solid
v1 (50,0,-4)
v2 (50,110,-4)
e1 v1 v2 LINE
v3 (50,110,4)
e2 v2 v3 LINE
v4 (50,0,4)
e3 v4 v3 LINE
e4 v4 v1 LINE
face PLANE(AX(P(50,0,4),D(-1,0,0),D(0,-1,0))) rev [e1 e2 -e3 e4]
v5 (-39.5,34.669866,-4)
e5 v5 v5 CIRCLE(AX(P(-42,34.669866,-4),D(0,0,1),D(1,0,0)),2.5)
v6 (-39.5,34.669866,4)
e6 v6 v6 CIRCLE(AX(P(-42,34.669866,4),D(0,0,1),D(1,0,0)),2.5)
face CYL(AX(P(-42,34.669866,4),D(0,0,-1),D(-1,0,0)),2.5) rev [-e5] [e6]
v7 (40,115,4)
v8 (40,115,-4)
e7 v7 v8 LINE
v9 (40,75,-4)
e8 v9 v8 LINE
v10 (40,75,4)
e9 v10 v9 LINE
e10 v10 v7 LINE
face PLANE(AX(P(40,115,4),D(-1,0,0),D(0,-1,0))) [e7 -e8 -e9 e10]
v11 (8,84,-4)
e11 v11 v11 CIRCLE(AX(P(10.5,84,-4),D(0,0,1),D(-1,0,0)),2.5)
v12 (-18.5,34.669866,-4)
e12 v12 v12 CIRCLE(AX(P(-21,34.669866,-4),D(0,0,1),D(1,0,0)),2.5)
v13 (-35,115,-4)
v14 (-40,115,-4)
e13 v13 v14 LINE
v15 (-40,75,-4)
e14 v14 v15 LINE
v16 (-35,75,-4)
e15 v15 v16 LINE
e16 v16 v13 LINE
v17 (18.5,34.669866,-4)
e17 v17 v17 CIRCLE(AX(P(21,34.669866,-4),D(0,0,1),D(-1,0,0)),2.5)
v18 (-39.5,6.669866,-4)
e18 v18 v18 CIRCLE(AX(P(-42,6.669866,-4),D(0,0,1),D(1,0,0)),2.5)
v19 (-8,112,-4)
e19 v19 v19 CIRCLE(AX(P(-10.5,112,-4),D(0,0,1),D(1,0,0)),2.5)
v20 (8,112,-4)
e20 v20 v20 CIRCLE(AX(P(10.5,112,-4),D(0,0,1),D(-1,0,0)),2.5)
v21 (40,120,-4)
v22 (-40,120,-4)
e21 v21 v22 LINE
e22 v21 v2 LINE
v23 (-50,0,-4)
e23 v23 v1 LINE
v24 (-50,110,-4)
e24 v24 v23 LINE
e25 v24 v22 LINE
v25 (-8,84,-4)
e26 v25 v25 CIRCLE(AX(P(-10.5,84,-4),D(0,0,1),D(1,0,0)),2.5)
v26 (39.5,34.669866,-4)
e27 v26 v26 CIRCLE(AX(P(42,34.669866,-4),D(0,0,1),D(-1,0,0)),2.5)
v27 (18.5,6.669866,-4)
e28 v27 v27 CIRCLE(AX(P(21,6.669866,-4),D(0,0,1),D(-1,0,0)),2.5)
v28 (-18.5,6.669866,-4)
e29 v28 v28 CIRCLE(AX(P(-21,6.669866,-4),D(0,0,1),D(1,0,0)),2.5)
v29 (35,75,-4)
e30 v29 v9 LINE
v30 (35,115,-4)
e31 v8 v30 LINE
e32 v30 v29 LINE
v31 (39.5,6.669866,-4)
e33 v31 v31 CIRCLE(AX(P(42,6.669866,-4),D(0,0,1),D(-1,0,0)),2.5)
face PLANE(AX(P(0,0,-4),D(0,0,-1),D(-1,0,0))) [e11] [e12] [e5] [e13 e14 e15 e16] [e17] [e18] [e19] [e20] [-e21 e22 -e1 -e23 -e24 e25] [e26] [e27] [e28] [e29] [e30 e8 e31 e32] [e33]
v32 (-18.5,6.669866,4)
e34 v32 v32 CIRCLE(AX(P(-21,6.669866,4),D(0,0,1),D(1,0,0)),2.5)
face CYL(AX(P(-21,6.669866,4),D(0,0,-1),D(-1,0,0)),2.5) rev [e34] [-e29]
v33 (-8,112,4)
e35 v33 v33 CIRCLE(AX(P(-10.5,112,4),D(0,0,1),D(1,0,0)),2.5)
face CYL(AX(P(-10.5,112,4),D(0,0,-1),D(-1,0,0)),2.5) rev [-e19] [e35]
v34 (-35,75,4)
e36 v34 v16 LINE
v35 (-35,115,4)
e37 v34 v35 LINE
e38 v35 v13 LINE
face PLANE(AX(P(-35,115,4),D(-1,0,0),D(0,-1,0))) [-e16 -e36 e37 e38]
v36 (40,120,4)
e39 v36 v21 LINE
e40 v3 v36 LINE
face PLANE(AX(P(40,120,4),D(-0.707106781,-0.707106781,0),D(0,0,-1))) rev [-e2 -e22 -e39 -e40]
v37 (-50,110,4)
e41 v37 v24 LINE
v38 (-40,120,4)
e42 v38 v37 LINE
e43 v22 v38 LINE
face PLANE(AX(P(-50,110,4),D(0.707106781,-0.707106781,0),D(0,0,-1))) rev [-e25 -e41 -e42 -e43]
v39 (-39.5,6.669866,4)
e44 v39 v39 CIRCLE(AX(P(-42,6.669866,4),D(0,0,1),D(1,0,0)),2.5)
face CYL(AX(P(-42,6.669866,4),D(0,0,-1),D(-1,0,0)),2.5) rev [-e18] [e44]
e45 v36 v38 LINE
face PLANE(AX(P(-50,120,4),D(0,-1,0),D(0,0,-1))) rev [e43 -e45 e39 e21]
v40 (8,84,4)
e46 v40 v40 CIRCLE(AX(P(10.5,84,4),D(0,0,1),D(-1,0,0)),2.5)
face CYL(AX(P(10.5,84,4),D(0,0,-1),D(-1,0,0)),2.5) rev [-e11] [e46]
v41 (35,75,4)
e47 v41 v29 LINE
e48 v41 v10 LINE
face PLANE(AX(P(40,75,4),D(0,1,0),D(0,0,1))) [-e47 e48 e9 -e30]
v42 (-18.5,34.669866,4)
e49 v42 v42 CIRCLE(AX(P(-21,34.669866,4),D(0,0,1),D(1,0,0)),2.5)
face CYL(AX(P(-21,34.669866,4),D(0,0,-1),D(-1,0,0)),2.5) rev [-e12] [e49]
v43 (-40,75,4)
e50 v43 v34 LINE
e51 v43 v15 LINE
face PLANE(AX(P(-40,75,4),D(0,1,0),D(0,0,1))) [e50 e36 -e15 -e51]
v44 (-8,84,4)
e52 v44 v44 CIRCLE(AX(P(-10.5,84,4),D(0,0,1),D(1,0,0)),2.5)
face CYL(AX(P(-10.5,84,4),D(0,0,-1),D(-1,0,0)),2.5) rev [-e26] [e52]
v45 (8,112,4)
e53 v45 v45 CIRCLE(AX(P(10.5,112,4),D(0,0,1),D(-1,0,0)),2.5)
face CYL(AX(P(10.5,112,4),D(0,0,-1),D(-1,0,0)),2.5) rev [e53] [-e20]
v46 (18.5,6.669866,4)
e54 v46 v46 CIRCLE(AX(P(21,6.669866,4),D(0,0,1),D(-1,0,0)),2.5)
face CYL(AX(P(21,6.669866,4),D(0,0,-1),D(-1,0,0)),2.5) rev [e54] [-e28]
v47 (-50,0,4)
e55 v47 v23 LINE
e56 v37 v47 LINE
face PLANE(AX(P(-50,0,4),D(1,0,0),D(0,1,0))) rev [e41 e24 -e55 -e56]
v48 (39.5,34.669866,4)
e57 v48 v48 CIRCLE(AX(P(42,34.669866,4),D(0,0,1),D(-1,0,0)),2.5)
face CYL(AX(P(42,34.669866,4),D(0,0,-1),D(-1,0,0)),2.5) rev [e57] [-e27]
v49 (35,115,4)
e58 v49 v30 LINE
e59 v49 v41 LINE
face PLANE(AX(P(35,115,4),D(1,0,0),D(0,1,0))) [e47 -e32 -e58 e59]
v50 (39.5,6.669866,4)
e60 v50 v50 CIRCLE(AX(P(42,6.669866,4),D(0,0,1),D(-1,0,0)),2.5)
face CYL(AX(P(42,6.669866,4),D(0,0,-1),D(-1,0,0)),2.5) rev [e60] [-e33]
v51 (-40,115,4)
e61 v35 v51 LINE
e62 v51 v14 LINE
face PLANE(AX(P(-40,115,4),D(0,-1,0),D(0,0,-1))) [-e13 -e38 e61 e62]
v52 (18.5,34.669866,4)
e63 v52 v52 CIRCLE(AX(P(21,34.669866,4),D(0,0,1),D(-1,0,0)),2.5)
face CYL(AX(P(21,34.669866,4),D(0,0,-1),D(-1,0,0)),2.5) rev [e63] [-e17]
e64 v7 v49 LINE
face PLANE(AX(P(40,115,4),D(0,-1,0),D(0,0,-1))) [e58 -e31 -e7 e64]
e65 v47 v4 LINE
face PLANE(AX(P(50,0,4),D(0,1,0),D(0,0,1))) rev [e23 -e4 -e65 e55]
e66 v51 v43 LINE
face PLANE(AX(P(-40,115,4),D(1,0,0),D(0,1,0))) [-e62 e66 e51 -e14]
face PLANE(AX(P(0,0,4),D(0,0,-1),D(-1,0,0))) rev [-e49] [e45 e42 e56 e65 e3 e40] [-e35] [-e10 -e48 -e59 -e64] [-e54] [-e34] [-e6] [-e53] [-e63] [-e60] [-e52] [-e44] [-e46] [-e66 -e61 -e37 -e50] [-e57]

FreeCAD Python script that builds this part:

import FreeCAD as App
import Part
import Sketcher


def edges_at(feature, points):
    """Names of the edges that pass closest to the given points."""
    edges = feature.Shape.Edges
    near = lambda p: min(range(len(edges)), key=lambda i: edges[i].distToShape(Part.Vertex(*p))[0])
    return sorted({f"Edge{near(p) + 1}" for p in points})

doc = App.newDocument("Part")
body = doc.addObject("PartDesign::Body", "Body")

# Sketch on XY plane
sketch1 = body.newObject("Sketcher::SketchObject", "Sketch")
sketch1.AttachmentSupport = (doc.getObject("XY_Plane"), [""])
sketch1.MapMode = "FlatFace"
sketch1.addGeometry([
    Part.LineSegment(App.Vector(-50, 120, 0), App.Vector(-50, 0, 0)),  # 0
    Part.LineSegment(App.Vector(-50, 0, 0), App.Vector(50, 0, 0)),  # 1
    Part.LineSegment(App.Vector(50, 0, 0), App.Vector(50, 120, 0)),  # 2
    Part.LineSegment(App.Vector(50, 120, 0), App.Vector(-50, 120, 0)),  # 3
    Part.Circle(App.Vector(-42, 6.7, 0), App.Vector(0, 0, 1), 2.5),  # 4
    Part.Circle(App.Vector(-21, 6.7, 0), App.Vector(0, 0, 1), 2.5),  # 5
    Part.Circle(App.Vector(-42, 34.7, 0), App.Vector(0, 0, 1), 2.5),  # 6
    Part.Circle(App.Vector(-21, 34.7, 0), App.Vector(0, 0, 1), 2.5),  # 7
    Part.Circle(App.Vector(21, 6.7, 0), App.Vector(0, 0, 1), 2.5),  # 8
    Part.Circle(App.Vector(42, 6.7, 0), App.Vector(0, 0, 1), 2.5),  # 9
    Part.Circle(App.Vector(21, 34.7, 0), App.Vector(0, 0, 1), 2.5),  # 10
    Part.Circle(App.Vector(42, 34.7, 0), App.Vector(0, 0, 1), 2.5),  # 11
    Part.Circle(App.Vector(-10.5, 84, 0), App.Vector(0, 0, 1), 2.5),  # 12
    Part.LineSegment(App.Vector(-35, 75, 0), App.Vector(-40, 75, 0)),  # 13
    Part.LineSegment(App.Vector(-40, 75, 0), App.Vector(-40, 115, 0)),  # 14
    Part.LineSegment(App.Vector(-40, 115, 0), App.Vector(-35, 115, 0)),  # 15
    Part.LineSegment(App.Vector(-35, 115, 0), App.Vector(-35, 75, 0)),  # 16
    Part.Circle(App.Vector(-10.5, 112, 0), App.Vector(0, 0, 1), 2.5),  # 17
    Part.Circle(App.Vector(10.5, 84, 0), App.Vector(0, 0, 1), 2.5),  # 18
    Part.Circle(App.Vector(10.5, 112, 0), App.Vector(0, 0, 1), 2.5),  # 19
    Part.LineSegment(App.Vector(40, 75, 0), App.Vector(35, 75, 0)),  # 20
    Part.LineSegment(App.Vector(35, 75, 0), App.Vector(35, 115, 0)),  # 21
    Part.LineSegment(App.Vector(35, 115, 0), App.Vector(40, 115, 0)),  # 22
    Part.LineSegment(App.Vector(40, 115, 0), App.Vector(40, 75, 0)),  # 23
], False)
sketch1.addConstraint([
    Sketcher.Constraint("Coincident", 0, 2, 1, 1),
    Sketcher.Constraint("Coincident", 1, 2, 2, 1),
    Sketcher.Constraint("Coincident", 2, 2, 3, 1),
    Sketcher.Constraint("Coincident", 3, 2, 0, 1),
    Sketcher.Constraint("Coincident", 13, 2, 14, 1),
    Sketcher.Constraint("Coincident", 14, 2, 15, 1),
    Sketcher.Constraint("Coincident", 15, 2, 16, 1),
    Sketcher.Constraint("Coincident", 16, 2, 13, 1),
    Sketcher.Constraint("Coincident", 20, 2, 21, 1),
    Sketcher.Constraint("Coincident", 21, 2, 22, 1),
    Sketcher.Constraint("Coincident", 22, 2, 23, 1),
    Sketcher.Constraint("Coincident", 23, 2, 20, 1),
    Sketcher.Constraint("Vertical", 0),
    Sketcher.Constraint("Horizontal", 1),
    Sketcher.Constraint("Vertical", 2),
    Sketcher.Constraint("Horizontal", 3),
    Sketcher.Constraint("Horizontal", 13),
    Sketcher.Constraint("Vertical", 14),
    Sketcher.Constraint("Horizontal", 15),
    Sketcher.Constraint("Vertical", 16),
    Sketcher.Constraint("Horizontal", 20),
    Sketcher.Constraint("Vertical", 21),
    Sketcher.Constraint("Horizontal", 22),
    Sketcher.Constraint("Vertical", 23),
    Sketcher.Constraint("Equal", 4, 5),
    Sketcher.Constraint("Equal", 5, 6),
    Sketcher.Constraint("Equal", 6, 7),
    Sketcher.Constraint("Equal", 7, 8),
    Sketcher.Constraint("Equal", 8, 9),
    Sketcher.Constraint("Equal", 9, 10),
    Sketcher.Constraint("Equal", 10, 11),
    Sketcher.Constraint("Equal", 11, 12),
    Sketcher.Constraint("Equal", 12, 17),
    Sketcher.Constraint("Equal", 17, 18),
    Sketcher.Constraint("Equal", 18, 19),
    Sketcher.Constraint("Symmetric", 0, 2, 1, 2, -1, 1),
    Sketcher.Constraint("Symmetric", 5, 3, 8, 3, -2),
    Sketcher.Constraint("Symmetric", 4, 3, 9, 3, -2),
    Sketcher.Constraint("Symmetric", 7, 3, 10, 3, -2),
    Sketcher.Constraint("Symmetric", 6, 3, 11, 3, -2),
    Sketcher.Constraint("Symmetric", 12, 3, 18, 3, -2),
    Sketcher.Constraint("Symmetric", 17, 3, 19, 3, -2),
    Sketcher.Constraint("Symmetric", 16, 2, 20, 2, -2),
    Sketcher.Constraint("Symmetric", 14, 2, 22, 2, -2),
    Sketcher.Constraint("Horizontal", 4, 3, 5, 3),
    Sketcher.Constraint("Horizontal", 6, 3, 7, 3),
    Sketcher.Constraint("Vertical", 4, 3, 6, 3),
    Sketcher.Constraint("Vertical", 5, 3, 7, 3),
    Sketcher.Constraint("Vertical", 12, 3, 17, 3),
    Sketcher.Constraint("Diameter", 4, 5.0),
    Sketcher.Constraint("DistanceX", 1, 1, 1, 2, 100.0),
    Sketcher.Constraint("DistanceX", 13, 2, 13, 1, 5.0),
    Sketcher.Constraint("DistanceY", 0, 2, 0, 1, 120.0),
    Sketcher.Constraint("DistanceY", 14, 1, 14, 2, 40.0),
    Sketcher.Constraint("DistanceX", 4, 3, -1, 1, 42.0),
    Sketcher.Constraint("DistanceX", 5, 3, -1, 1, 21.0),
    Sketcher.Constraint("DistanceY", -1, 1, 12, 3, 84.0),
    Sketcher.Constraint("DistanceY", -1, 1, 17, 3, 112.0),
    Sketcher.Constraint("DistanceX", 13, 2, -1, 1, 40.0),
    Sketcher.Constraint("DistanceY", -1, 1, 13, 2, 75.0),
    Sketcher.Constraint("DistanceY", 4, 3, 6, 3, 28.0),
    Sketcher.Constraint("DistanceX", 12, 3, 18, 3, 21.0),
    Sketcher.Constraint("DistanceY", -1, 1, 4, 3, 6.669866),
])
pad1 = body.newObject("PartDesign::Pad", "Pad")
pad1.Profile = sketch1
pad1.Length = 8
pad1.Midplane = True
doc.recompute()

chamfer = body.newObject("PartDesign::Chamfer", "Chamfer")
chamfer.Base = (pad1, edges_at(pad1, [(-50, 120, 0), (50, 120, 0)]))
chamfer.Size = 10

doc.recompute()
